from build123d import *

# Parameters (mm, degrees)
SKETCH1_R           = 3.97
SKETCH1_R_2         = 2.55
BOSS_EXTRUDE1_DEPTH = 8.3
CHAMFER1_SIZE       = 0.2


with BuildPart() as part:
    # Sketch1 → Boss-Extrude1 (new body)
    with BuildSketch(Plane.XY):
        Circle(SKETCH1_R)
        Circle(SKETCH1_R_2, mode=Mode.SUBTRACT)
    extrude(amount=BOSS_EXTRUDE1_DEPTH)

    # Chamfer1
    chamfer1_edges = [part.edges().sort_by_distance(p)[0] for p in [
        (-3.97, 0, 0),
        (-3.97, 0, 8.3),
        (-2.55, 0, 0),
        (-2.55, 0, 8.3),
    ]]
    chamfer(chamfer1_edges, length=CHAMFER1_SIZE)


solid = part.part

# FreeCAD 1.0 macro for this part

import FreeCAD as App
import Part
import Sketcher

V = App.Vector
Q = App.Units.Quantity


def edges_at(feature, points):
    """Names of the edges that pass closest to the given points."""
    edges = feature.Shape.Edges
    near = lambda p: min(range(len(edges)), key=lambda i: edges[i].distToShape(Part.Vertex(*p))[0])
    return sorted({f"Edge{near(p) + 1}" for p in points})

doc = App.newDocument("Part")
params = doc.addObject("Spreadsheet::Sheet", "Params")
for row, (alias, value) in enumerate([
    ("sketch1_diameter", "5.1 mm"),
    ("sketch1_diameter2", "7.94 mm"),
    ("pad1_length", "8.3 mm"),
    ("chamfer_size", "0.2 mm"),
], start=1):
    params.set(f"A{row}", alias)
    params.set(f"B{row}", "=" + value)
    params.setAlias(f"B{row}", alias)

body = doc.addObject("PartDesign::Body", "Body")

# Sketch on XY plane
sketch1 = body.newObject("Sketcher::SketchObject", "Sketch")
sketch1.AttachmentSupport = (doc.getObject("XY_Plane"), [""])
sketch1.MapMode = "FlatFace"
sketch1.addGeometry(Part.Circle(V(0, 0, 0), V(0, 0, 1), 4), False)
sketch1.addGeometry(Part.Circle(V(0, 0, 0), V(0, 0, 1), 2.5), False)
sketch1.addConstraint(Sketcher.Constraint("Coincident", 0, 3, -1, 1))
sketch1.addConstraint(Sketcher.Constraint("Coincident", 1, 3, -1, 1))
sketch1.addConstraint(Sketcher.Constraint("Diameter", 1, Q("5.1 mm")))
sketch1.addConstraint(Sketcher.Constraint("Diameter", 0, Q("7.94 mm")))
sketch1.setExpression("Constraints[2]", "Params.sketch1_diameter")
sketch1.setExpression("Constraints[3]", "Params.sketch1_diameter2")
pad1 = body.newObject("PartDesign::Pad", "Pad")
pad1.Profile = sketch1
pad1.setExpression("Length", "Params.pad1_length")
doc.recompute()

chamfer = body.newObject("PartDesign::Chamfer", "Chamfer")
chamfer.Base = (pad1, edges_at(pad1, [
    (-3.97, 0, 0),
    (-3.97, 0, 8.3),
    (-2.55, 0, 0),
    (-2.55, 0, 8.3),
]))
chamfer.setExpression("Size", "Params.chamfer_size")

doc.recompute()
